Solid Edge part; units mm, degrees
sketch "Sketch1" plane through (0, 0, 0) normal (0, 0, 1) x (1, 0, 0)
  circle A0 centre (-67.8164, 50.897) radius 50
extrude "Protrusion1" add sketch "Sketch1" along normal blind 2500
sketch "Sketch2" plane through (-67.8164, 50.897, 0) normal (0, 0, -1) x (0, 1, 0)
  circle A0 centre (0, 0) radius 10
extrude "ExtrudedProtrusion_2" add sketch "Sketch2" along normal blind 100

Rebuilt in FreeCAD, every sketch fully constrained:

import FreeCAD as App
import Part
import Sketcher

V = App.Vector
Q = App.Units.Quantity

doc = App.newDocument("Part")
body = doc.addObject("PartDesign::Body", "Body")

# Sketch on XY plane
sketch1 = body.newObject("Sketcher::SketchObject", "Sketch")
sketch1.AttachmentSupport = (doc.getObject("XY_Plane"), [""])
sketch1.MapMode = "FlatFace"
sketch1.addGeometry(Part.Circle(V(-68, 51, 0), V(0, 0, 1), 50), False)
sketch1.addConstraint([
    Sketcher.Constraint("Diameter", 0, Q("3.937 in")),
    Sketcher.Constraint("DistanceX", 0, 3, -1, 1, 67.8164),
    Sketcher.Constraint("DistanceY", -1, 1, 0, 3, 50.897),
])
pad1 = body.newObject("PartDesign::Pad", "Pad")
pad1.Profile = sketch1
pad1.Length = Q("98.4251969 in")

# Sketch on XY plane
sketch2 = body.newObject("Sketcher::SketchObject", "Sketch001")
sketch2.AttachmentSupport = (doc.getObject("XY_Plane"), [""])
sketch2.MapMode = "FlatFace"
sketch2.addGeometry(Part.Circle(V(-68, 51, 0), V(0, 0, 1), 10), False)
sketch2.addConstraint([
    Sketcher.Constraint("Diameter", 0, Q("0.7874 in")),
    Sketcher.Constraint("DistanceX", 0, 3, -1, 1, 67.8164),
    Sketcher.Constraint("DistanceY", -1, 1, 0, 3, 50.897),
])
pad2 = body.newObject("PartDesign::Pad", "Pad001")
pad2.Profile = sketch2
pad2.Length = Q("3.9370079 in")
pad2.Reversed = True

doc.recompute()
